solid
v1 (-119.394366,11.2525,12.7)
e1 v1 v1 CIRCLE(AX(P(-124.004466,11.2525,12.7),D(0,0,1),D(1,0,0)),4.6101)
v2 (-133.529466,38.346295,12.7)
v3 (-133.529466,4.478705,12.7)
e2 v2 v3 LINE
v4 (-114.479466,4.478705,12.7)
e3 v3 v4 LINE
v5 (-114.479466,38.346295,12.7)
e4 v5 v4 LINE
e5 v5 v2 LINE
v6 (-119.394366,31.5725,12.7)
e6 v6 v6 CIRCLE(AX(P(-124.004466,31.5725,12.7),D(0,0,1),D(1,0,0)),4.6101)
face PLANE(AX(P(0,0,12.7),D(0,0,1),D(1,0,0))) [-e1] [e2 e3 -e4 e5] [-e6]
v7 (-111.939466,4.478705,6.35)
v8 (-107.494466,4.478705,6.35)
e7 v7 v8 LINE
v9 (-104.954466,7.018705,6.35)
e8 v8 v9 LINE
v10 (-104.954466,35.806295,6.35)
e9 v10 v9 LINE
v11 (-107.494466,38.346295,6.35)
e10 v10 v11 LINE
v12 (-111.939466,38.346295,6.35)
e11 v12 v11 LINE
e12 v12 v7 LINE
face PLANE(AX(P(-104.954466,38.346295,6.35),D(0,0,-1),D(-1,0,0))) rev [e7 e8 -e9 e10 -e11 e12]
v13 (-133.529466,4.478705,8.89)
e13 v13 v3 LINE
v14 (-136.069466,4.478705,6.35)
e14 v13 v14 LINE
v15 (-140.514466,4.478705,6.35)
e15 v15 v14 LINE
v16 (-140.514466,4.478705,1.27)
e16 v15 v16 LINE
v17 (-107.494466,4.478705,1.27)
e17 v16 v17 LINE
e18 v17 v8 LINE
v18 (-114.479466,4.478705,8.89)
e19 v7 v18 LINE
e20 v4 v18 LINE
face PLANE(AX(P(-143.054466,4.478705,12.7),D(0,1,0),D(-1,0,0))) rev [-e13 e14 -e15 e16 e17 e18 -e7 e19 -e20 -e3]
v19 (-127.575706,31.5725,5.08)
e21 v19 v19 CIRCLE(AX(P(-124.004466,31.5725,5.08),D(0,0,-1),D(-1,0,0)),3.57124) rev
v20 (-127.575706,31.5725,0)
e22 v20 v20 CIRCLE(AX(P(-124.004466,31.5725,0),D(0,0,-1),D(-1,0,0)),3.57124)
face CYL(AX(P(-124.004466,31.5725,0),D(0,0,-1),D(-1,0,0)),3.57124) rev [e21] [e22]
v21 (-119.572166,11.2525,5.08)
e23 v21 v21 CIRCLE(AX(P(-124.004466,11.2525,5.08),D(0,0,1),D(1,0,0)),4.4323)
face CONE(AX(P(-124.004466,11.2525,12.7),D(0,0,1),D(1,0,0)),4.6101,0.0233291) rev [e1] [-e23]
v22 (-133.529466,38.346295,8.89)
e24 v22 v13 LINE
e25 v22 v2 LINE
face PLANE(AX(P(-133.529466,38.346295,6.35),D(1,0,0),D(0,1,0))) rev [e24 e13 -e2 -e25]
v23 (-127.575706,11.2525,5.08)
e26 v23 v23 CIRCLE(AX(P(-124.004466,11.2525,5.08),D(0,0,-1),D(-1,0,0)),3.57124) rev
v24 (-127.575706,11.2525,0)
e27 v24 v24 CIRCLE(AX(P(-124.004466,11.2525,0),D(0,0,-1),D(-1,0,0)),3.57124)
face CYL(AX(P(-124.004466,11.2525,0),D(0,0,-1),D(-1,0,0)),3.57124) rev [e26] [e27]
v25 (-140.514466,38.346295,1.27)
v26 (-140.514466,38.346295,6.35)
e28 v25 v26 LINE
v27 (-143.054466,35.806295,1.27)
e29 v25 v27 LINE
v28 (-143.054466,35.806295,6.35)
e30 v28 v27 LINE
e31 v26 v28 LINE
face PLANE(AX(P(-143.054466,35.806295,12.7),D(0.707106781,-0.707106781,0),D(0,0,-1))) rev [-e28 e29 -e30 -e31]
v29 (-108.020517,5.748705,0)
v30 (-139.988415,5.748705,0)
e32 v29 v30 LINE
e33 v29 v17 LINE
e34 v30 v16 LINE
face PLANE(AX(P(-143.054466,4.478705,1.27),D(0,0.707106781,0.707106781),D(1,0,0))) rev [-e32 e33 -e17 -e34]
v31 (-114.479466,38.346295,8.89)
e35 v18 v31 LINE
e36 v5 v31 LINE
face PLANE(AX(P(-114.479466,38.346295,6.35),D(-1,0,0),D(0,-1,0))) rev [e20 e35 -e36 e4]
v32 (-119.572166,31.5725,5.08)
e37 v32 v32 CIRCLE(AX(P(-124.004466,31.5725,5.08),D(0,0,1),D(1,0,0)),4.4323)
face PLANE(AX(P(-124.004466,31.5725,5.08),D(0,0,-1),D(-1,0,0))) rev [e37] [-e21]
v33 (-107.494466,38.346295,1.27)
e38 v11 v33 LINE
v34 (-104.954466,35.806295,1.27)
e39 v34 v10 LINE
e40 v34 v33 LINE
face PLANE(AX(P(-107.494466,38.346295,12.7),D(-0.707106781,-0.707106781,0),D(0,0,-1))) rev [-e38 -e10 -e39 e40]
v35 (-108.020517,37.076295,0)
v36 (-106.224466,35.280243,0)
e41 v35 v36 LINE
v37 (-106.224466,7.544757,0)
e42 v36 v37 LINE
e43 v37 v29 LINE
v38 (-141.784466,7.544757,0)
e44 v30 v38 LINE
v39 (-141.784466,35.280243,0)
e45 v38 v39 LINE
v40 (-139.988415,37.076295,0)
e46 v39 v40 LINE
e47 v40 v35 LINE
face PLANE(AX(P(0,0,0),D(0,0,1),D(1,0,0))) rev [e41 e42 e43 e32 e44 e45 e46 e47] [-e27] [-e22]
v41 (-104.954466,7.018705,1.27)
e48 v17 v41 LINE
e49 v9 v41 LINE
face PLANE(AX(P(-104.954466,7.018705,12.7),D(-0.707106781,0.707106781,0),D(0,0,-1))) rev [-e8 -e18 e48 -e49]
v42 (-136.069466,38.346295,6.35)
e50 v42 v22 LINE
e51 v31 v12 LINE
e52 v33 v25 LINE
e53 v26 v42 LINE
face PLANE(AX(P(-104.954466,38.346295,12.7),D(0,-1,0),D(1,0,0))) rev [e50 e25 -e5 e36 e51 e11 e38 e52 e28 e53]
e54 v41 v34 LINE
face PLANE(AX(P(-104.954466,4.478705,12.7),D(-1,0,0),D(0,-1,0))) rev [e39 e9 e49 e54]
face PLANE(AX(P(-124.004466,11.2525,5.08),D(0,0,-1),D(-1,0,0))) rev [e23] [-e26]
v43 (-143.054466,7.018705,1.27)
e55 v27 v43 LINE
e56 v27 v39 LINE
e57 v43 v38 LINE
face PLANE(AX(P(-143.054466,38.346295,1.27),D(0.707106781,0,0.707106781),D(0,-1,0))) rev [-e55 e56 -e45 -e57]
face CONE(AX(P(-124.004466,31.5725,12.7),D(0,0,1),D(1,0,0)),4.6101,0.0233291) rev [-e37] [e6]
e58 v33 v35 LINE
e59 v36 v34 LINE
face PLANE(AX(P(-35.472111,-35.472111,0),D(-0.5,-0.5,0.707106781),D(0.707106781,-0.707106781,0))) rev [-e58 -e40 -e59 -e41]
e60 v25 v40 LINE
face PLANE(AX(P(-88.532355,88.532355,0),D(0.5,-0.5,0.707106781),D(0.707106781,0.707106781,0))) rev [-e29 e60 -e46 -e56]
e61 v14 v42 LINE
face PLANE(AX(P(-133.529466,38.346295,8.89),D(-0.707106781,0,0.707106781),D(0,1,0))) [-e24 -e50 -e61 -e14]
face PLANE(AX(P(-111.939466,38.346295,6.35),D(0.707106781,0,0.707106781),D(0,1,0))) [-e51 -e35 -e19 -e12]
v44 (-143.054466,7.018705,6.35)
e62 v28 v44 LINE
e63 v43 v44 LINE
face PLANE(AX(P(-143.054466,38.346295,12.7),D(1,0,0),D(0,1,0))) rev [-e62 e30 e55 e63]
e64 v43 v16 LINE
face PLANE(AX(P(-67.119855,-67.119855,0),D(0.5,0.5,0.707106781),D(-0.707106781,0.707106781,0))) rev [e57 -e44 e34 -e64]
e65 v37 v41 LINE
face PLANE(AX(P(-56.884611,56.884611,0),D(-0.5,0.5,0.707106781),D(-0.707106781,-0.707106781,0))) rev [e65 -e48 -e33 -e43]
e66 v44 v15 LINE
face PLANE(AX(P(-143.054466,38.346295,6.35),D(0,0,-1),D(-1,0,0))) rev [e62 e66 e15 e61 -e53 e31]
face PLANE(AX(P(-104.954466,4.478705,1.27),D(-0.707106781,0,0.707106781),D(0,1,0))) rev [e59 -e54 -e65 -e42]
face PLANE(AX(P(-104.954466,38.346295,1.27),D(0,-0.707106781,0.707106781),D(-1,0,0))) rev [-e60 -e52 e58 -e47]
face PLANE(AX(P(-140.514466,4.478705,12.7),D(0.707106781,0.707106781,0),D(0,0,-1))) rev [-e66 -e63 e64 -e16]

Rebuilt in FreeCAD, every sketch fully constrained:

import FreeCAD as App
import Part
import Sketcher
Q = App.Units.Quantity


def edges_at(feature, points):
    """Names of the edges that pass closest to the given points."""
    edges = feature.Shape.Edges
    near = lambda p: min(range(len(edges)), key=lambda i: edges[i].distToShape(Part.Vertex(*p))[0])
    return sorted({f"Edge{near(p) + 1}" for p in points})


def add_polygon(sketch, points):
    """Adds a closed chain of lines whose ends are joined by coincident constraints."""
    first, n = sketch.GeometryCount, len(points)
    for a, b in zip(points, points[1:] + points[:1]):
        sketch.addGeometry(Part.LineSegment(App.Vector(*a, 0), App.Vector(*b, 0)), False)
    for i in range(n):
        sketch.addConstraint(Sketcher.Constraint("Coincident", first + i, 2, first + (i + 1) % n, 1))

doc = App.newDocument("Part")
params = doc.addObject("Spreadsheet::Sheet", "Params")
for row, (alias, value) in enumerate([
    ("sketch1_width", "1.5 in"),
    ("pad1_length", "0.5 in"),
    ("hole_diameter", "0.2812 in"),
    ("sketch3_height", "0.3 in"),
    ("groove_angle", "360 deg"),
    ("linearpattern_pitch", "0.8 in"),
    ("sketch4_height", "0.25 in"),
    ("sketch4_width", "0.375 in"),
    ("chamfer_size", "0.1 in"),
    ("chamfer2_size", "0.05 in"),
], start=1):
    params.set(f"A{row}", alias)
    params.set(f"B{row}", "=" + value)
    params.setAlias(f"B{row}", alias)

body = doc.addObject("PartDesign::Body", "Body")

# Sketch on XY plane
sketch1 = body.newObject("Sketcher::SketchObject", "Sketch")
sketch1.AttachmentSupport = (doc.getObject("XY_Plane"), [""])
sketch1.MapMode = "FlatFace"
add_polygon(sketch1, [(-143.054466, 38.346295), (-143.054466, 4.478705), (-104.954466, 4.478705), (-104.954466, 38.346295)])  # lines 0-3
sketch1.addConstraint(Sketcher.Constraint("Vertical", 0))
sketch1.addConstraint(Sketcher.Constraint("Horizontal", 1))
sketch1.addConstraint(Sketcher.Constraint("Vertical", 2))
sketch1.addConstraint(Sketcher.Constraint("Horizontal", 3))
sketch1.addConstraint(Sketcher.Constraint("DistanceX", 1, 1, 1, 2, Q("1.5 in")))
sketch1.addConstraint(Sketcher.Constraint("DistanceY", 0, 2, 0, 1, 33.867589))
sketch1.addConstraint(Sketcher.Constraint("DistanceX", 0, 2, -1, 1, 143.054466))
sketch1.addConstraint(Sketcher.Constraint("DistanceY", -1, 1, 0, 2, 4.478705))
sketch1.setExpression("Constraints[8]", "Params.sketch1_width")
pad1 = body.newObject("PartDesign::Pad", "Pad")
pad1.Profile = sketch1
pad1.setExpression("Length", "Params.pad1_length")

# Sketch on XY plane
sketch2 = body.newObject("Sketcher::SketchObject", "Sketch001")
sketch2.AttachmentSupport = (doc.getObject("XY_Plane"), [""])
sketch2.MapMode = "FlatFace"
sketch2.addGeometry(Part.Circle(App.Vector(-124.004466, 11.2525, 0), App.Vector(0, 0, 1), 3.57124), False)
sketch2.addGeometry(Part.Circle(App.Vector(-124.004466, 31.5725, 0), App.Vector(0, 0, 1), 3.57124), False)
sketch2.addConstraint(Sketcher.Constraint("Equal", 0, 1))
sketch2.addConstraint(Sketcher.Constraint("Vertical", 0, 3, 1, 3))
sketch2.addConstraint(Sketcher.Constraint("Diameter", 0, Q("0.2812 in")))
sketch2.addConstraint(Sketcher.Constraint("DistanceY", 0, 3, 1, 3, Q("0.8 in")))
sketch2.addConstraint(Sketcher.Constraint("DistanceY", -1, 1, 0, 3, 11.2525))
sketch2.addConstraint(Sketcher.Constraint("DistanceX", 0, 3, -1, 1, 124.004466))
doc.recompute()
hole = body.newObject("PartDesign::Hole", "Hole")
hole.Profile = sketch2
hole.ThreadType = "None"
hole.setExpression("Diameter", "Params.hole_diameter")
hole.DepthType = "ThroughAll"
hole.Reversed = True

# Sketch on YZ plane
sketch3 = body.newObject("Sketcher::SketchObject", "Sketch002")
sketch3.AttachmentSupport = (doc.getObject("YZ_Plane"), [""])
sketch3.MapMode = "FlatFace"
sketch3.AttachmentOffset = App.Placement(App.Vector(0, 0, -124.004466), App.Rotation())
add_polygon(sketch3, [(11.2525, 5.08), (11.2525, 12.7), (6.6424, 12.7), (6.8202, 5.08)])  # lines 0-3
sketch3.addGeometry(Part.LineSegment(App.Vector(11.2525, 5.08, 0), App.Vector(11.2525, 12.7, 0)), True)  # axis
sketch3.addConstraint(Sketcher.Constraint("Vertical", 0))
sketch3.addConstraint(Sketcher.Constraint("Horizontal", 1))
sketch3.addConstraint(Sketcher.Constraint("Horizontal", 3))
sketch3.addConstraint(Sketcher.Constraint("Vertical", 4))
sketch3.addConstraint(Sketcher.Constraint("Coincident", 4, 1, 3, 2))
sketch3.addConstraint(Sketcher.Constraint("Horizontal", 1, 2, 4, 2))
sketch3.addConstraint(Sketcher.Constraint("DistanceY", 0, 1, 0, 2, Q("0.3 in")))
sketch3.addConstraint(Sketcher.Constraint("DistanceY", -1, 1, 0, 2, Q("0.5 in")))
sketch3.addConstraint(Sketcher.Constraint("DistanceX", 1, 2, 1, 1, Q("0.1815 in")))
sketch3.addConstraint(Sketcher.Constraint("DistanceX", 3, 1, 3, 2, Q("0.1745 in")))
sketch3.addConstraint(Sketcher.Constraint("DistanceX", -1, 1, 0, 2, 11.2525))
sketch3.setExpression("Constraints[10]", "Params.sketch3_height")
groove = body.newObject("PartDesign::Groove", "Groove")
groove.Profile = sketch3
groove.ReferenceAxis = (sketch3, ["Axis0"])
groove.setExpression("Angle", "Params.groove_angle")
doc.recompute()

linearpattern = body.newObject("PartDesign::LinearPattern", "LinearPattern")
linearpattern.Originals = [groove]
linearpattern.Direction = (doc.getObject("Y_Axis"), [""])
linearpattern.Mode = "offset"
linearpattern.setExpression("Offset", "Params.linearpattern_pitch")
linearpattern.Occurrences = 2
body.Tip = linearpattern

# Sketch on XZ plane
sketch4 = body.newObject("Sketcher::SketchObject", "Sketch003")
sketch4.AttachmentSupport = (doc.getObject("XZ_Plane"), [""])
sketch4.MapMode = "FlatFace"
sketch4.AttachmentOffset = App.Placement(App.Vector(0, 0, -4.478705), App.Rotation())
add_polygon(sketch4, [(-114.479466, 12.7), (-114.479466, 6.35), (-104.954466, 6.35), (-104.954466, 12.7)])  # lines 0-3
add_polygon(sketch4, [(-143.054466, 12.7), (-143.054466, 6.35), (-133.529466, 6.35), (-133.529466, 12.7)])  # lines 4-7
sketch4.addConstraint(Sketcher.Constraint("Vertical", 0))
sketch4.addConstraint(Sketcher.Constraint("Horizontal", 1))
sketch4.addConstraint(Sketcher.Constraint("Vertical", 2))
sketch4.addConstraint(Sketcher.Constraint("Horizontal", 3))
sketch4.addConstraint(Sketcher.Constraint("Vertical", 4))
sketch4.addConstraint(Sketcher.Constraint("Horizontal", 5))
sketch4.addConstraint(Sketcher.Constraint("Vertical", 6))
sketch4.addConstraint(Sketcher.Constraint("Horizontal", 7))
sketch4.addConstraint(Sketcher.Constraint("Horizontal", 1, 2, 4, 2))
sketch4.addConstraint(Sketcher.Constraint("Horizontal", 3, 2, 6, 2))
sketch4.addConstraint(Sketcher.Constraint("Equal", 3, 5))
sketch4.addConstraint(Sketcher.Constraint("DistanceY", 0, 2, 0, 1, Q("0.25 in")))
sketch4.addConstraint(Sketcher.Constraint("DistanceY", -1, 1, 2, 2, Q("0.5 in")))
sketch4.addConstraint(Sketcher.Constraint("DistanceX", 4, 2, 1, 2, Q("1.5 in")))
sketch4.addConstraint(Sketcher.Constraint("DistanceX", 1, 1, 1, 2, Q("0.375 in")))
sketch4.addConstraint(Sketcher.Constraint("DistanceX", 0, 2, -1, 1, 114.479466))
sketch4.setExpression("Constraints[19]", "Params.sketch4_height")
sketch4.setExpression("Constraints[22]", "Params.sketch4_width")
pocket1 = body.newObject("PartDesign::Pocket", "Pocket")
pocket1.Profile = sketch4
pocket1.Type = "ThroughAll"
doc.recompute()

chamfer = body.newObject("PartDesign::Chamfer", "Chamfer")
chamfer.Base = (pocket1, edges_at(pocket1, [
    (-143.054, 38.346, 3.175),
    (-104.954, 38.346, 3.175),
    (-104.954, 4.479, 3.175),
    (-143.054, 4.479, 3.175),
    (-114.479, 21.413, 6.35),
    (-133.529, 21.413, 6.35),
]))
chamfer.setExpression("Size", "Params.chamfer_size")
doc.recompute()

chamfer2 = body.newObject("PartDesign::Chamfer", "Chamfer001")
chamfer2.Base = (chamfer, edges_at(chamfer, [
    (-143.054, 21.413, 0),
    (-124.004, 38.346, 0),
    (-104.954, 21.413, 0),
    (-124.004, 4.479, 0),
    (-106.224, 5.749, 0),
    (-141.784, 5.749, 0),
    (-106.224, 37.076, 0),
    (-141.784, 37.076, 0),
]))
chamfer2.setExpression("Size", "Params.chamfer2_size")

doc.recompute()
